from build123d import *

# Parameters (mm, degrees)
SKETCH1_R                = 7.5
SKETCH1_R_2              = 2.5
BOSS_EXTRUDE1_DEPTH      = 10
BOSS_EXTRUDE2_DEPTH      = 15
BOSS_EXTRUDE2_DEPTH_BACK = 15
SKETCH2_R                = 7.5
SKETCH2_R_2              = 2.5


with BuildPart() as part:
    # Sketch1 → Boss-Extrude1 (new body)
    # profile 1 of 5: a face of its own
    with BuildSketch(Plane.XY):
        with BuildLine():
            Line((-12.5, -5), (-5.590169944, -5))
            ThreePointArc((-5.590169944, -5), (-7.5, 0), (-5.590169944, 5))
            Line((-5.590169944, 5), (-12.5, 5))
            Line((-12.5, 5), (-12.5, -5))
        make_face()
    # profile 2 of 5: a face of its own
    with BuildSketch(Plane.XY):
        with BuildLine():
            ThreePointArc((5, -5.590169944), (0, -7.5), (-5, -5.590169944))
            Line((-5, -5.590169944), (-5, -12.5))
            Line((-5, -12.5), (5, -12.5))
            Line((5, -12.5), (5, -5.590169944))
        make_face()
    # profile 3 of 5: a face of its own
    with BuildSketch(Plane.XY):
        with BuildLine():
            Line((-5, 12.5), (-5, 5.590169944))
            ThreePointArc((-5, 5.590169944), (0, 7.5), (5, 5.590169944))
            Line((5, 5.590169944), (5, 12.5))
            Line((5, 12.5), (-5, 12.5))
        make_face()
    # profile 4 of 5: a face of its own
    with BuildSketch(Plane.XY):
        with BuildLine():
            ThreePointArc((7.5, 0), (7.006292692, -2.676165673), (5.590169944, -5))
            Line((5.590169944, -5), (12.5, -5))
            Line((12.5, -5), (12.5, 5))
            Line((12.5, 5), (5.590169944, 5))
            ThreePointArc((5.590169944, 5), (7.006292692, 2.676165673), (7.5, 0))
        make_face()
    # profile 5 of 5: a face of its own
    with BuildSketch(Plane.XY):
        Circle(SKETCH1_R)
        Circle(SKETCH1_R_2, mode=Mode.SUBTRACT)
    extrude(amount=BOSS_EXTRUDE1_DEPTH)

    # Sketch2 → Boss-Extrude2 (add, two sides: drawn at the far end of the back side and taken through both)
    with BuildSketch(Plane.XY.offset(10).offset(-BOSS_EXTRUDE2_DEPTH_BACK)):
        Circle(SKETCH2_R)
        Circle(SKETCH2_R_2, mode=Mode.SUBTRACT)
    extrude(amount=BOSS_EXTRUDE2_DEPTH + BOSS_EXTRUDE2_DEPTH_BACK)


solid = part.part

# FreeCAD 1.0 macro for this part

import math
import FreeCAD as App
import Part
import Sketcher

doc = App.newDocument("Part")
body = doc.addObject("PartDesign::Body", "Body")

# Sketch on XY plane
sketch1 = body.newObject("Sketcher::SketchObject", "Sketch")
sketch1.AttachmentSupport = (doc.getObject("XY_Plane"), [""])
sketch1.MapMode = "FlatFace"
sketch1.addGeometry(Part.LineSegment(App.Vector(-12.5, -5, 0), App.Vector(-5.6, -5, 0)), False)
sketch1.addGeometry(Part.ArcOfCircle(Part.Circle(App.Vector(0, 0, 0), App.Vector(0, 0, 1), 7.5), math.radians(-138.19), math.radians(-131.81)), False)
sketch1.addGeometry(Part.LineSegment(App.Vector(-5, -5.6, 0), App.Vector(-5, -12.5, 0)), False)
sketch1.addGeometry(Part.LineSegment(App.Vector(-5, -12.5, 0), App.Vector(5, -12.5, 0)), False)
sketch1.addGeometry(Part.LineSegment(App.Vector(5, -12.5, 0), App.Vector(5, -5.6, 0)), False)
sketch1.addGeometry(Part.ArcOfCircle(Part.Circle(App.Vector(0, 0, 0), App.Vector(0, 0, 1), 7.5), math.radians(-48.19), math.radians(-41.81)), False)
sketch1.addGeometry(Part.LineSegment(App.Vector(5.6, -5, 0), App.Vector(12.5, -5, 0)), False)
sketch1.addGeometry(Part.LineSegment(App.Vector(12.5, -5, 0), App.Vector(12.5, 5, 0)), False)
sketch1.addGeometry(Part.LineSegment(App.Vector(12.5, 5, 0), App.Vector(5.6, 5, 0)), False)
sketch1.addGeometry(Part.ArcOfCircle(Part.Circle(App.Vector(0, 0, 0), App.Vector(0, 0, 1), 7.5), math.radians(41.81), math.radians(48.19)), False)
sketch1.addGeometry(Part.LineSegment(App.Vector(5, 5.6, 0), App.Vector(5, 12.5, 0)), False)
sketch1.addGeometry(Part.LineSegment(App.Vector(5, 12.5, 0), App.Vector(-5, 12.5, 0)), False)
sketch1.addGeometry(Part.LineSegment(App.Vector(-5, 12.5, 0), App.Vector(-5, 5.6, 0)), False)
sketch1.addGeometry(Part.ArcOfCircle(Part.Circle(App.Vector(0, 0, 0), App.Vector(0, 0, 1), 7.5), math.radians(131.81), math.radians(138.19)), False)
sketch1.addGeometry(Part.LineSegment(App.Vector(-5.6, 5, 0), App.Vector(-12.5, 5, 0)), False)
sketch1.addGeometry(Part.LineSegment(App.Vector(-12.5, 5, 0), App.Vector(-12.5, -5, 0)), False)
sketch1.addGeometry(Part.Circle(App.Vector(0, 0, 0), App.Vector(0, 0, 1), 2.5), False)
sketch1.addConstraint(Sketcher.Constraint("Coincident", 0, 2, 1, 1))
sketch1.addConstraint(Sketcher.Constraint("Coincident", 1, 2, 2, 1))
sketch1.addConstraint(Sketcher.Constraint("Coincident", 2, 2, 3, 1))
sketch1.addConstraint(Sketcher.Constraint("Coincident", 3, 2, 4, 1))
sketch1.addConstraint(Sketcher.Constraint("Coincident", 4, 2, 5, 1))
sketch1.addConstraint(Sketcher.Constraint("Coincident", 5, 2, 6, 1))
sketch1.addConstraint(Sketcher.Constraint("Coincident", 6, 2, 7, 1))
sketch1.addConstraint(Sketcher.Constraint("Coincident", 7, 2, 8, 1))
sketch1.addConstraint(Sketcher.Constraint("Coincident", 8, 2, 9, 1))
sketch1.addConstraint(Sketcher.Constraint("Coincident", 9, 2, 10, 1))
sketch1.addConstraint(Sketcher.Constraint("Coincident", 10, 2, 11, 1))
sketch1.addConstraint(Sketcher.Constraint("Coincident", 11, 2, 12, 1))
sketch1.addConstraint(Sketcher.Constraint("Coincident", 12, 2, 13, 1))
sketch1.addConstraint(Sketcher.Constraint("Coincident", 13, 2, 14, 1))
sketch1.addConstraint(Sketcher.Constraint("Coincident", 14, 2, 15, 1))
sketch1.addConstraint(Sketcher.Constraint("Coincident", 15, 2, 0, 1))
sketch1.addConstraint(Sketcher.Constraint("Horizontal", 0))
sketch1.addConstraint(Sketcher.Constraint("Vertical", 2))
sketch1.addConstraint(Sketcher.Constraint("Horizontal", 3))
sketch1.addConstraint(Sketcher.Constraint("Vertical", 4))
sketch1.addConstraint(Sketcher.Constraint("Horizontal", 6))
sketch1.addConstraint(Sketcher.Constraint("Vertical", 7))
sketch1.addConstraint(Sketcher.Constraint("Horizontal", 8))
sketch1.addConstraint(Sketcher.Constraint("Vertical", 10))
sketch1.addConstraint(Sketcher.Constraint("Horizontal", 11))
sketch1.addConstraint(Sketcher.Constraint("Vertical", 12))
sketch1.addConstraint(Sketcher.Constraint("Horizontal", 14))
sketch1.addConstraint(Sketcher.Constraint("Vertical", 15))
sketch1.addConstraint(Sketcher.Constraint("Coincident", 1, 3, -1, 1))
sketch1.addConstraint(Sketcher.Constraint("Coincident", 5, 3, -1, 1))
sketch1.addConstraint(Sketcher.Constraint("Coincident", 9, 3, -1, 1))
sketch1.addConstraint(Sketcher.Constraint("Coincident", 13, 3, -1, 1))
sketch1.addConstraint(Sketcher.Constraint("Coincident", 16, 3, -1, 1))
sketch1.addConstraint(Sketcher.Constraint("Equal", 1, 5))
sketch1.addConstraint(Sketcher.Constraint("Equal", 5, 9))
sketch1.addConstraint(Sketcher.Constraint("Equal", 9, 13))
sketch1.addConstraint(Sketcher.Constraint("Symmetric", 2, 2, 10, 2, -1, 1))
sketch1.addConstraint(Sketcher.Constraint("Symmetric", 6, 2, 14, 2, -1, 1))
sketch1.addConstraint(Sketcher.Constraint("Horizontal", 1, 2, 4, 2))
sketch1.addConstraint(Sketcher.Constraint("Horizontal", 0, 2, 5, 2))
sketch1.addConstraint(Sketcher.Constraint("Horizontal", 9, 2, 12, 2))
sketch1.addConstraint(Sketcher.Constraint("Horizontal", 8, 2, 13, 2))
sketch1.addConstraint(Sketcher.Constraint("Equal", 14, 2))
sketch1.addConstraint(Sketcher.Constraint("Equal", 11, 7))
sketch1.addConstraint(Sketcher.Constraint("Diameter", 16, 5.0))
sketch1.addConstraint(Sketcher.Constraint("Radius", 1, 7.5))
sketch1.addConstraint(Sketcher.Constraint("DistanceX", 3, 1, 3, 2, 10.0))
sketch1.addConstraint(Sketcher.Constraint("DistanceY", 2, 2, -1, 1, 12.5))
pad1 = body.newObject("PartDesign::Pad", "Pad")
pad1.Profile = sketch1
pad1.Length = 10

# Sketch on XY plane
sketch2 = body.newObject("Sketcher::SketchObject", "Sketch001")
sketch2.AttachmentSupport = (doc.getObject("XY_Plane"), [""])
sketch2.MapMode = "FlatFace"
sketch2.AttachmentOffset = App.Placement(App.Vector(0, 0, 10), App.Rotation())
sketch2.addGeometry(Part.Circle(App.Vector(0, 0, 0), App.Vector(0, 0, 1), 7.5), False)
sketch2.addGeometry(Part.Circle(App.Vector(0, 0, 0), App.Vector(0, 0, 1), 2.5), False)
sketch2.addConstraint(Sketcher.Constraint("Coincident", 0, 3, -1, 1))
sketch2.addConstraint(Sketcher.Constraint("Coincident", 1, 3, -1, 1))
sketch2.addConstraint(Sketcher.Constraint("Diameter", 0, 15.0))
sketch2.addConstraint(Sketcher.Constraint("Diameter", 1, 5.0))
pad2 = body.newObject("PartDesign::Pad", "Pad001")
pad2.Profile = sketch2
pad2.Type = "TwoLengths"
pad2.Length = 15
pad2.Length2 = 15

doc.recompute()
